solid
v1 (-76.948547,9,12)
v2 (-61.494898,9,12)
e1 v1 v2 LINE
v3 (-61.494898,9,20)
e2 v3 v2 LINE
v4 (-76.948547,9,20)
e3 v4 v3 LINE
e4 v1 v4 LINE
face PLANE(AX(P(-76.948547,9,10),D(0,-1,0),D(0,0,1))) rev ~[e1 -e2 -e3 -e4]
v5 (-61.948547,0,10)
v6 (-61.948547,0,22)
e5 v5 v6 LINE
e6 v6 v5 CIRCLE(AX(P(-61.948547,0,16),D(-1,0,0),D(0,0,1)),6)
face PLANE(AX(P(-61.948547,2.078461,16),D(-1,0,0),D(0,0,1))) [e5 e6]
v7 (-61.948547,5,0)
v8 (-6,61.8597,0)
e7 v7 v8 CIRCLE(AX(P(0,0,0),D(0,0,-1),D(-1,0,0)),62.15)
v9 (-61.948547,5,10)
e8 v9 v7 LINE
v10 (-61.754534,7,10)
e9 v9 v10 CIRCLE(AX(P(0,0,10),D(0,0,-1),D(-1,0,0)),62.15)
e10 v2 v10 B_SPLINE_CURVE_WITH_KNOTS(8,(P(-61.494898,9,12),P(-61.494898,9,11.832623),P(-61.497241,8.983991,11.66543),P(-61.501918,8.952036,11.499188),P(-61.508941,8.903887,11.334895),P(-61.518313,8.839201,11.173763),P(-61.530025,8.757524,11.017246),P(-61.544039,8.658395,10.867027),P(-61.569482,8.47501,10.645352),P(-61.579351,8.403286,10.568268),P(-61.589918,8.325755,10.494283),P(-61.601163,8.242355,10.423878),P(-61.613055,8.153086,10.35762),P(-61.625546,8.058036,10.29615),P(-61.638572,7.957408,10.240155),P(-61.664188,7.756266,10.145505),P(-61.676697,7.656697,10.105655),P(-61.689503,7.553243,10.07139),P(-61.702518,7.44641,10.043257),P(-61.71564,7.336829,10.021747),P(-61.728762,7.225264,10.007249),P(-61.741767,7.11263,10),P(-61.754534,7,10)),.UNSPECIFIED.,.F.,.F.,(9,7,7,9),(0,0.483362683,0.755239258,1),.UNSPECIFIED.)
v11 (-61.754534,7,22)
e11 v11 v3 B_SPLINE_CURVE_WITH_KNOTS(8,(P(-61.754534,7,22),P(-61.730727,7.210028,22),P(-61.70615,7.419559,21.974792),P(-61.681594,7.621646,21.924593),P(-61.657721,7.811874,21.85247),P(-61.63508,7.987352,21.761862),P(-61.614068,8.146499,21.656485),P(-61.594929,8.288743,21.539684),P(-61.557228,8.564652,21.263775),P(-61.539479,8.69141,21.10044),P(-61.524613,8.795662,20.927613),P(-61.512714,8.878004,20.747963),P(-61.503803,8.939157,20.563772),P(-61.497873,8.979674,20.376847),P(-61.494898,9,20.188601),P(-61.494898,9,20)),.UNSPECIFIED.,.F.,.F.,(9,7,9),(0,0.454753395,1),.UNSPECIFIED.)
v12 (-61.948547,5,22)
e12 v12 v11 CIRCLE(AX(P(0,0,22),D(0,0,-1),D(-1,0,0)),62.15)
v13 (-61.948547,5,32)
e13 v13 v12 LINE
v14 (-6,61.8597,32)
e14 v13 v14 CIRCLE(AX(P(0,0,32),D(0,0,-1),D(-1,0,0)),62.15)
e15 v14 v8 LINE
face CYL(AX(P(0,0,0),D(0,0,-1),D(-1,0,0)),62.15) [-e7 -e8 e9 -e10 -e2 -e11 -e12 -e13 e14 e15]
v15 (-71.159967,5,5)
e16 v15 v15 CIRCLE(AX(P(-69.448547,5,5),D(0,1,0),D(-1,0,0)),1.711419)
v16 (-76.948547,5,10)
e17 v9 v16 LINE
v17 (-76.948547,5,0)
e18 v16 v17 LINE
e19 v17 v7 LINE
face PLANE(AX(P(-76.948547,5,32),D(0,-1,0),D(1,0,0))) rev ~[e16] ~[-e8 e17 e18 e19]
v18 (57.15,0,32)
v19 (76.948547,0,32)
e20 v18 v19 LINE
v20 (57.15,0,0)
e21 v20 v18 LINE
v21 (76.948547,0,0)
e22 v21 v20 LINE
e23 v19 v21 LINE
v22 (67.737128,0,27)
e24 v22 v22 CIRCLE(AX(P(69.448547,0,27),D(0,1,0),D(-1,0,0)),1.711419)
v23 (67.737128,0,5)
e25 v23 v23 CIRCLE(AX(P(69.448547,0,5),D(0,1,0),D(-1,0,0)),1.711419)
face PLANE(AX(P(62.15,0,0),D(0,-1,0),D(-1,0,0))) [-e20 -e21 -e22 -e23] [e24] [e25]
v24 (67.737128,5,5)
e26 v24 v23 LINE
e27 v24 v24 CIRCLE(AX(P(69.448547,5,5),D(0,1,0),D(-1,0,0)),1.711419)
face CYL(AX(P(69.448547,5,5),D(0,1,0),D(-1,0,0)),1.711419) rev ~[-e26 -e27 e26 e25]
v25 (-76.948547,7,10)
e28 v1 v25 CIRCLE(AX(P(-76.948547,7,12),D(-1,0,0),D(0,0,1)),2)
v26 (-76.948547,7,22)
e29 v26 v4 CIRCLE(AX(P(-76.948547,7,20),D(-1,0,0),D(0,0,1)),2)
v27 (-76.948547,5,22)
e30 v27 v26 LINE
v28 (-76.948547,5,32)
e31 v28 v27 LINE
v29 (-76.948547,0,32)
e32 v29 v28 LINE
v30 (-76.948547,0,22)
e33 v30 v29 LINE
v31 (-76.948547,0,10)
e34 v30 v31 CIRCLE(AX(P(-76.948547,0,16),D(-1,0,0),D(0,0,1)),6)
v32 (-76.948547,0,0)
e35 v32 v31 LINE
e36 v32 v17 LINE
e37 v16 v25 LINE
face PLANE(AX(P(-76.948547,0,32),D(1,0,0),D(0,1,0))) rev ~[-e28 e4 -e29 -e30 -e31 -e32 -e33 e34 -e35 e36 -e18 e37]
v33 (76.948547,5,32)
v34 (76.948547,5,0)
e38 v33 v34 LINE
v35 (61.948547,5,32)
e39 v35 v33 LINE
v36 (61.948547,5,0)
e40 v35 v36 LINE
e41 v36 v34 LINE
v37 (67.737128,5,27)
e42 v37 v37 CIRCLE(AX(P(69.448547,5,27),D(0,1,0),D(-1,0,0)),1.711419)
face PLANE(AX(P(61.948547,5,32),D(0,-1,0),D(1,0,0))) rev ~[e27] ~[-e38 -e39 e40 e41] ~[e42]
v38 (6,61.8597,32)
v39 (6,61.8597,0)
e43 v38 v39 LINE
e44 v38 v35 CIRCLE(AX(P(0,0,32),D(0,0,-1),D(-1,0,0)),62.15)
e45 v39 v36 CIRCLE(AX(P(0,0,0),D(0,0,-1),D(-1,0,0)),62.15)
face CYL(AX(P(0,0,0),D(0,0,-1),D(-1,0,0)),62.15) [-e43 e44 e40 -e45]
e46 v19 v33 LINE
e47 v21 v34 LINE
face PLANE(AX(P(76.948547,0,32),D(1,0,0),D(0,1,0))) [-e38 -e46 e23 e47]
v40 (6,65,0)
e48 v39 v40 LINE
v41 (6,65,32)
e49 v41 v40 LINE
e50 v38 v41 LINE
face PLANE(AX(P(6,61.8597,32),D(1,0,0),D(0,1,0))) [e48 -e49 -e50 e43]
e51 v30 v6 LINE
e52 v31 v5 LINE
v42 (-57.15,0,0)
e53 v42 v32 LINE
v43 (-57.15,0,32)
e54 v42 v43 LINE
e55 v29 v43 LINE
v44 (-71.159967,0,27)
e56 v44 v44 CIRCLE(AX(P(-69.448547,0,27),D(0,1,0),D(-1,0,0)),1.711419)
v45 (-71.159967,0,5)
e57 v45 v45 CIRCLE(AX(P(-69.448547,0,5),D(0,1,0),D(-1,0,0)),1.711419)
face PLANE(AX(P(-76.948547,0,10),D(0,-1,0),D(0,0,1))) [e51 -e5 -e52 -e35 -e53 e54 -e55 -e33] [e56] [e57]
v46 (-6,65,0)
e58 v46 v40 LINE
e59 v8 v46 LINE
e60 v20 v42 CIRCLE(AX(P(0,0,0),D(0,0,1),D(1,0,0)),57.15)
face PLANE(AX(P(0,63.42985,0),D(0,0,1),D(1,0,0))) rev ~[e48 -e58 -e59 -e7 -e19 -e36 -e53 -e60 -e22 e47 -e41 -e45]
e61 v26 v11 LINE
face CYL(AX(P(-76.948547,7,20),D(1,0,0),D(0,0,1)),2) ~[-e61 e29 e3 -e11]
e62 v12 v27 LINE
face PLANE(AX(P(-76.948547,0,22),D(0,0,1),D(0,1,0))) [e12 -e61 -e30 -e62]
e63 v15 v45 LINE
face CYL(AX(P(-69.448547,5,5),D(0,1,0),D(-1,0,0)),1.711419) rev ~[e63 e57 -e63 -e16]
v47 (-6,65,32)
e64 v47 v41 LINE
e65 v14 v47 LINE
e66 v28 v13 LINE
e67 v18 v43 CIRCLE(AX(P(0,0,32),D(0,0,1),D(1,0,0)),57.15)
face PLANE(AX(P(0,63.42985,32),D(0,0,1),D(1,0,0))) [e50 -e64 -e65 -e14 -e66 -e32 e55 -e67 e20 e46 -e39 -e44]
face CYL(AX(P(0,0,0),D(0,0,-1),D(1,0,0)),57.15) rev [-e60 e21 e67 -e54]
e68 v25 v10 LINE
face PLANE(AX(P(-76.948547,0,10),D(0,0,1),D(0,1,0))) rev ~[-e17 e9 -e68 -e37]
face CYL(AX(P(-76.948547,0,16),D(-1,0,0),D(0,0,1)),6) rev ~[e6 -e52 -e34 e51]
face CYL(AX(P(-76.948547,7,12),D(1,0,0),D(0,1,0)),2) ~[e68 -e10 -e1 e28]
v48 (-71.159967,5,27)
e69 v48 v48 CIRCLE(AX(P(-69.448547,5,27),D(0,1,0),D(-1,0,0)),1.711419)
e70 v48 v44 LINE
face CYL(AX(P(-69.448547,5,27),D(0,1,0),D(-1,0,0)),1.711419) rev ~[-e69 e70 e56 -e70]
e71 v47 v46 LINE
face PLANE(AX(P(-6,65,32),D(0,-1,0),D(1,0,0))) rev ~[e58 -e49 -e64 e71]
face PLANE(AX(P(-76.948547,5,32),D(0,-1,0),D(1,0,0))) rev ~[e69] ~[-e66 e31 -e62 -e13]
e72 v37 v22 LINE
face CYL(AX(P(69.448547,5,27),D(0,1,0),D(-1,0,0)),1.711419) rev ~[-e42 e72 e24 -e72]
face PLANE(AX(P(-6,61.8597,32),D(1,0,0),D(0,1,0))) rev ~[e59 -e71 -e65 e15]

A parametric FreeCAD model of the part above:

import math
import FreeCAD as App
import Part
import Sketcher
from FreeCAD import Vector


def edges_at(feature, points):
    """Names of the edges that pass closest to the given points."""
    edges = feature.Shape.Edges
    near = lambda p: min(range(len(edges)), key=lambda i: edges[i].distToShape(Part.Vertex(*p))[0])
    return sorted({f"Edge{near(p) + 1}" for p in points})

doc = App.newDocument("Part")
body = doc.addObject("PartDesign::Body", "Body")

# Sketch on XY plane
sketch1 = body.newObject("Sketcher::SketchObject", "Sketch")
sketch1.AttachmentSupport = (doc.getObject("XY_Plane"), [""])
sketch1.MapMode = "FlatFace"
sketch1.addGeometry([
    Part.LineSegment(Vector(-62, 0, 0), Vector(-57, 0, 0)),
    Part.ArcOfCircle(Part.Circle(Vector(0, 0, 0), Vector(0, 0, 1), 57), math.radians(0), math.radians(180)),
    Part.LineSegment(Vector(57, 0, 0), Vector(62, 0, 0)),
    Part.ArcOfCircle(Part.Circle(Vector(0, 0, 0), Vector(0, 0, 1), 62), math.radians(0), math.radians(180)),
], False)
sketch1.addConstraint([
    Sketcher.Constraint("Coincident", 0, 2, 1, 2),
    Sketcher.Constraint("Coincident", 1, 1, 2, 1),
    Sketcher.Constraint("Coincident", 2, 2, 3, 1),
    Sketcher.Constraint("Coincident", 3, 2, 0, 1),
    Sketcher.Constraint("Horizontal", 0),
    Sketcher.Constraint("Horizontal", 2),
    Sketcher.Constraint("Coincident", 1, 3, -1, 1),
    Sketcher.Constraint("Coincident", 3, 3, -1, 1),
    Sketcher.Constraint("PointOnObject", 0, 2, -1),
    Sketcher.Constraint("PointOnObject", 1, 1, -1),
    Sketcher.Constraint("DistanceX", 0, 1, 0, 2, 5.0),
    Sketcher.Constraint("Radius", 1, 57.15),
])
pad1 = body.newObject("PartDesign::Pad", "Pad")
pad1.Profile = sketch1
pad1.Length = 32

# Sketch on XY plane
sketch2 = body.newObject("Sketcher::SketchObject", "Sketch001")
sketch2.AttachmentSupport = (doc.getObject("XY_Plane"), [""])
sketch2.MapMode = "FlatFace"
sketch2.AttachmentOffset = App.Placement(Vector(0, 0, 32), App.Rotation())
sketch2.addGeometry([
    Part.LineSegment(Vector(-6, 65, 0), Vector(-6, 61.9, 0)),  # 0
    Part.LineSegment(Vector(-6, 61.9, 0), Vector(6, 61.9, 0)),  # 1
    Part.LineSegment(Vector(6, 61.9, 0), Vector(6, 65, 0)),  # 2
    Part.LineSegment(Vector(6, 65, 0), Vector(-6, 65, 0)),  # 3
    Part.LineSegment(Vector(61.9, 5, 0), Vector(61.9, 0, 0)),  # 4
    Part.LineSegment(Vector(61.9, 0, 0), Vector(76.9, 0, 0)),  # 5
    Part.LineSegment(Vector(76.9, 0, 0), Vector(76.9, 5, 0)),  # 6
    Part.LineSegment(Vector(76.9, 5, 0), Vector(61.9, 5, 0)),  # 7
    Part.LineSegment(Vector(-76.9, 5, 0), Vector(-76.9, 0, 0)),  # 8
    Part.LineSegment(Vector(-76.9, 0, 0), Vector(-61.9, 0, 0)),  # 9
    Part.LineSegment(Vector(-61.9, 0, 0), Vector(-61.9, 5, 0)),  # 10
    Part.LineSegment(Vector(-61.9, 5, 0), Vector(-76.9, 5, 0)),  # 11
], False)
sketch2.addConstraint([
    Sketcher.Constraint("Coincident", 0, 2, 1, 1),
    Sketcher.Constraint("Coincident", 1, 2, 2, 1),
    Sketcher.Constraint("Coincident", 2, 2, 3, 1),
    Sketcher.Constraint("Coincident", 3, 2, 0, 1),
    Sketcher.Constraint("Coincident", 4, 2, 5, 1),
    Sketcher.Constraint("Coincident", 5, 2, 6, 1),
    Sketcher.Constraint("Coincident", 6, 2, 7, 1),
    Sketcher.Constraint("Coincident", 7, 2, 4, 1),
    Sketcher.Constraint("Coincident", 8, 2, 9, 1),
    Sketcher.Constraint("Coincident", 9, 2, 10, 1),
    Sketcher.Constraint("Coincident", 10, 2, 11, 1),
    Sketcher.Constraint("Coincident", 11, 2, 8, 1),
    Sketcher.Constraint("Vertical", 0),
    Sketcher.Constraint("Horizontal", 1),
    Sketcher.Constraint("Vertical", 2),
    Sketcher.Constraint("Horizontal", 3),
    Sketcher.Constraint("Vertical", 4),
    Sketcher.Constraint("Horizontal", 5),
    Sketcher.Constraint("Vertical", 6),
    Sketcher.Constraint("Horizontal", 7),
    Sketcher.Constraint("Vertical", 8),
    Sketcher.Constraint("Horizontal", 9),
    Sketcher.Constraint("Vertical", 10),
    Sketcher.Constraint("Horizontal", 11),
    Sketcher.Constraint("Symmetric", 5, 2, 8, 2, -1, 1),
    Sketcher.Constraint("Symmetric", 4, 2, 9, 2, -2),
    Sketcher.Constraint("Horizontal", 7, 2, 10, 2),
    Sketcher.Constraint("DistanceX", 1, 1, 1, 2, 12.0),
    Sketcher.Constraint("DistanceX", 5, 1, 5, 2, 15.0),
    Sketcher.Constraint("DistanceY", 4, 2, 4, 1, 5.0),
    Sketcher.Constraint("DistanceX", 0, 2, -1, 1, 6.0),
    Sketcher.Constraint("DistanceY", -1, 1, 2, 2, 65.0),
    Sketcher.Constraint("DistanceY", 0, 2, 0, 1, 3.1403),
    Sketcher.Constraint("DistanceX", -1, 1, 4, 2, 61.948547),
])
pad2 = body.newObject("PartDesign::Pad", "Pad001")
pad2.Profile = sketch2
pad2.Length = 32
pad2.Reversed = True

# Sketch on YZ plane
sketch3 = body.newObject("Sketcher::SketchObject", "Sketch002")
sketch3.AttachmentSupport = (doc.getObject("YZ_Plane"), [""])
sketch3.MapMode = "FlatFace"
sketch3.AttachmentOffset = App.Placement(Vector(0, 0, -76.948547), App.Rotation())
sketch3.addGeometry([
    Part.LineSegment(Vector(9, 10, 0), Vector(0, 10, 0)),
    Part.LineSegment(Vector(0, 10, 0), Vector(0, 22, 0)),
    Part.LineSegment(Vector(0, 22, 0), Vector(9, 22, 0)),
    Part.LineSegment(Vector(9, 22, 0), Vector(9, 10, 0)),
], False)
sketch3.addConstraint([
    Sketcher.Constraint("Coincident", 0, 2, 1, 1),
    Sketcher.Constraint("Coincident", 1, 2, 2, 1),
    Sketcher.Constraint("Coincident", 2, 2, 3, 1),
    Sketcher.Constraint("Coincident", 3, 2, 0, 1),
    Sketcher.Constraint("Horizontal", 0),
    Sketcher.Constraint("Vertical", 1),
    Sketcher.Constraint("Horizontal", 2),
    Sketcher.Constraint("Vertical", 3),
    Sketcher.Constraint("PointOnObject", 0, 2, -2),
    Sketcher.Constraint("DistanceX", 0, 2, 0, 1, 9.0),
    Sketcher.Constraint("DistanceY", 1, 1, 1, 2, 12.0),
    Sketcher.Constraint("DistanceY", -1, 1, 0, 2, 10.0),
])
pad3 = body.newObject("PartDesign::Pad", "Pad002")
pad3.Profile = sketch3
pad3.Length = 19

# Sketch on YZ plane
sketch4 = body.newObject("Sketcher::SketchObject", "Sketch003")
sketch4.AttachmentSupport = (doc.getObject("YZ_Plane"), [""])
sketch4.MapMode = "FlatFace"
sketch4.AttachmentOffset = App.Placement(Vector(0, 0, -76.948547), App.Rotation())
sketch4.addGeometry([
    Part.LineSegment(Vector(0, 10, 0), Vector(0, 22, 0)),
    Part.ArcOfCircle(Part.Circle(Vector(0, 16, 0), Vector(0, 0, 1), 6), math.radians(-90), math.radians(90)),
], False)
sketch4.addConstraint([
    Sketcher.Constraint("Coincident", 0, 1, 1, 1),
    Sketcher.Constraint("Coincident", 1, 2, 0, 2),
    Sketcher.Constraint("Vertical", 0),
    Sketcher.Constraint("PointOnObject", 1, 3, -2),
    Sketcher.Constraint("PointOnObject", 0, 1, -2),
    Sketcher.Constraint("Radius", 1, 6.0),
    Sketcher.Constraint("DistanceY", -1, 1, 1, 3, 16.0),
])
pocket1 = body.newObject("PartDesign::Pocket", "Pocket")
pocket1.Profile = sketch4
pocket1.Length = 15
pocket1.Reversed = True
doc.recompute()

fillet = body.newObject("PartDesign::Fillet", "Fillet")
fillet.Base = (pocket1, edges_at(pocket1, [(-69.222, 9, 10), (-69.222, 9, 22)]))
fillet.Radius = 2

# Sketch on XZ plane
sketch5 = body.newObject("Sketcher::SketchObject", "Sketch004")
sketch5.AttachmentSupport = (doc.getObject("XZ_Plane"), [""])
sketch5.MapMode = "FlatFace"
sketch5.AttachmentOffset = App.Placement(Vector(0, 0, -5), App.Rotation())
sketch5.addGeometry(Part.Circle(Vector(-69.4, 5, 0), Vector(0, 0, 1), 1.7), False)
sketch5.addConstraint([
    Sketcher.Constraint("DistanceY", -1, 1, 0, 3, 5.0),
    Sketcher.Constraint("Diameter", 0, 3.422839),
    Sketcher.Constraint("DistanceX", 0, 3, -1, 1, 69.448547),
])
pocket2 = body.newObject("PartDesign::Pocket", "Pocket001")
pocket2.Profile = sketch5
pocket2.Type = "UpToFirst"
pocket2.Reversed = True

# Sketch on XZ plane
sketch6 = body.newObject("Sketcher::SketchObject", "Sketch005")
sketch6.AttachmentSupport = (doc.getObject("XZ_Plane"), [""])
sketch6.MapMode = "FlatFace"
sketch6.AttachmentOffset = App.Placement(Vector(0, 0, -5), App.Rotation())
sketch6.addGeometry(Part.Circle(Vector(-69.4, 27, 0), Vector(0, 0, 1), 1.7), False)
sketch6.addConstraint([
    Sketcher.Constraint("DistanceY", -1, 1, 0, 3, 27.0),
    Sketcher.Constraint("Diameter", 0, 3.422839),
    Sketcher.Constraint("DistanceX", 0, 3, -1, 1, 69.448547),
])
pocket3 = body.newObject("PartDesign::Pocket", "Pocket002")
pocket3.Profile = sketch6
pocket3.Type = "UpToFirst"
pocket3.Reversed = True

# Sketch on XZ plane
sketch7 = body.newObject("Sketcher::SketchObject", "Sketch006")
sketch7.AttachmentSupport = (doc.getObject("XZ_Plane"), [""])
sketch7.MapMode = "FlatFace"
sketch7.AttachmentOffset = App.Placement(Vector(0, 0, -5), App.Rotation())
sketch7.addGeometry(Part.Circle(Vector(69.4, 27, 0), Vector(0, 0, 1), 1.7), False)
sketch7.addConstraint([
    Sketcher.Constraint("DistanceY", -1, 1, 0, 3, 27.0),
    Sketcher.Constraint("Diameter", 0, 3.422839),
    Sketcher.Constraint("DistanceX", -1, 1, 0, 3, 69.448547),
])
pocket4 = body.newObject("PartDesign::Pocket", "Pocket003")
pocket4.Profile = sketch7
pocket4.Type = "UpToFirst"
pocket4.Reversed = True

# Sketch on XZ plane
sketch8 = body.newObject("Sketcher::SketchObject", "Sketch007")
sketch8.AttachmentSupport = (doc.getObject("XZ_Plane"), [""])
sketch8.MapMode = "FlatFace"
sketch8.AttachmentOffset = App.Placement(Vector(0, 0, -5), App.Rotation())
sketch8.addGeometry(Part.Circle(Vector(69.4, 5, 0), Vector(0, 0, 1), 1.7), False)
sketch8.addConstraint([
    Sketcher.Constraint("DistanceY", -1, 1, 0, 3, 5.0),
    Sketcher.Constraint("Diameter", 0, 3.422839),
    Sketcher.Constraint("DistanceX", -1, 1, 0, 3, 69.448547),
])
pocket5 = body.newObject("PartDesign::Pocket", "Pocket004")
pocket5.Profile = sketch8
pocket5.Type = "UpToFirst"
pocket5.Reversed = True

doc.recompute()
